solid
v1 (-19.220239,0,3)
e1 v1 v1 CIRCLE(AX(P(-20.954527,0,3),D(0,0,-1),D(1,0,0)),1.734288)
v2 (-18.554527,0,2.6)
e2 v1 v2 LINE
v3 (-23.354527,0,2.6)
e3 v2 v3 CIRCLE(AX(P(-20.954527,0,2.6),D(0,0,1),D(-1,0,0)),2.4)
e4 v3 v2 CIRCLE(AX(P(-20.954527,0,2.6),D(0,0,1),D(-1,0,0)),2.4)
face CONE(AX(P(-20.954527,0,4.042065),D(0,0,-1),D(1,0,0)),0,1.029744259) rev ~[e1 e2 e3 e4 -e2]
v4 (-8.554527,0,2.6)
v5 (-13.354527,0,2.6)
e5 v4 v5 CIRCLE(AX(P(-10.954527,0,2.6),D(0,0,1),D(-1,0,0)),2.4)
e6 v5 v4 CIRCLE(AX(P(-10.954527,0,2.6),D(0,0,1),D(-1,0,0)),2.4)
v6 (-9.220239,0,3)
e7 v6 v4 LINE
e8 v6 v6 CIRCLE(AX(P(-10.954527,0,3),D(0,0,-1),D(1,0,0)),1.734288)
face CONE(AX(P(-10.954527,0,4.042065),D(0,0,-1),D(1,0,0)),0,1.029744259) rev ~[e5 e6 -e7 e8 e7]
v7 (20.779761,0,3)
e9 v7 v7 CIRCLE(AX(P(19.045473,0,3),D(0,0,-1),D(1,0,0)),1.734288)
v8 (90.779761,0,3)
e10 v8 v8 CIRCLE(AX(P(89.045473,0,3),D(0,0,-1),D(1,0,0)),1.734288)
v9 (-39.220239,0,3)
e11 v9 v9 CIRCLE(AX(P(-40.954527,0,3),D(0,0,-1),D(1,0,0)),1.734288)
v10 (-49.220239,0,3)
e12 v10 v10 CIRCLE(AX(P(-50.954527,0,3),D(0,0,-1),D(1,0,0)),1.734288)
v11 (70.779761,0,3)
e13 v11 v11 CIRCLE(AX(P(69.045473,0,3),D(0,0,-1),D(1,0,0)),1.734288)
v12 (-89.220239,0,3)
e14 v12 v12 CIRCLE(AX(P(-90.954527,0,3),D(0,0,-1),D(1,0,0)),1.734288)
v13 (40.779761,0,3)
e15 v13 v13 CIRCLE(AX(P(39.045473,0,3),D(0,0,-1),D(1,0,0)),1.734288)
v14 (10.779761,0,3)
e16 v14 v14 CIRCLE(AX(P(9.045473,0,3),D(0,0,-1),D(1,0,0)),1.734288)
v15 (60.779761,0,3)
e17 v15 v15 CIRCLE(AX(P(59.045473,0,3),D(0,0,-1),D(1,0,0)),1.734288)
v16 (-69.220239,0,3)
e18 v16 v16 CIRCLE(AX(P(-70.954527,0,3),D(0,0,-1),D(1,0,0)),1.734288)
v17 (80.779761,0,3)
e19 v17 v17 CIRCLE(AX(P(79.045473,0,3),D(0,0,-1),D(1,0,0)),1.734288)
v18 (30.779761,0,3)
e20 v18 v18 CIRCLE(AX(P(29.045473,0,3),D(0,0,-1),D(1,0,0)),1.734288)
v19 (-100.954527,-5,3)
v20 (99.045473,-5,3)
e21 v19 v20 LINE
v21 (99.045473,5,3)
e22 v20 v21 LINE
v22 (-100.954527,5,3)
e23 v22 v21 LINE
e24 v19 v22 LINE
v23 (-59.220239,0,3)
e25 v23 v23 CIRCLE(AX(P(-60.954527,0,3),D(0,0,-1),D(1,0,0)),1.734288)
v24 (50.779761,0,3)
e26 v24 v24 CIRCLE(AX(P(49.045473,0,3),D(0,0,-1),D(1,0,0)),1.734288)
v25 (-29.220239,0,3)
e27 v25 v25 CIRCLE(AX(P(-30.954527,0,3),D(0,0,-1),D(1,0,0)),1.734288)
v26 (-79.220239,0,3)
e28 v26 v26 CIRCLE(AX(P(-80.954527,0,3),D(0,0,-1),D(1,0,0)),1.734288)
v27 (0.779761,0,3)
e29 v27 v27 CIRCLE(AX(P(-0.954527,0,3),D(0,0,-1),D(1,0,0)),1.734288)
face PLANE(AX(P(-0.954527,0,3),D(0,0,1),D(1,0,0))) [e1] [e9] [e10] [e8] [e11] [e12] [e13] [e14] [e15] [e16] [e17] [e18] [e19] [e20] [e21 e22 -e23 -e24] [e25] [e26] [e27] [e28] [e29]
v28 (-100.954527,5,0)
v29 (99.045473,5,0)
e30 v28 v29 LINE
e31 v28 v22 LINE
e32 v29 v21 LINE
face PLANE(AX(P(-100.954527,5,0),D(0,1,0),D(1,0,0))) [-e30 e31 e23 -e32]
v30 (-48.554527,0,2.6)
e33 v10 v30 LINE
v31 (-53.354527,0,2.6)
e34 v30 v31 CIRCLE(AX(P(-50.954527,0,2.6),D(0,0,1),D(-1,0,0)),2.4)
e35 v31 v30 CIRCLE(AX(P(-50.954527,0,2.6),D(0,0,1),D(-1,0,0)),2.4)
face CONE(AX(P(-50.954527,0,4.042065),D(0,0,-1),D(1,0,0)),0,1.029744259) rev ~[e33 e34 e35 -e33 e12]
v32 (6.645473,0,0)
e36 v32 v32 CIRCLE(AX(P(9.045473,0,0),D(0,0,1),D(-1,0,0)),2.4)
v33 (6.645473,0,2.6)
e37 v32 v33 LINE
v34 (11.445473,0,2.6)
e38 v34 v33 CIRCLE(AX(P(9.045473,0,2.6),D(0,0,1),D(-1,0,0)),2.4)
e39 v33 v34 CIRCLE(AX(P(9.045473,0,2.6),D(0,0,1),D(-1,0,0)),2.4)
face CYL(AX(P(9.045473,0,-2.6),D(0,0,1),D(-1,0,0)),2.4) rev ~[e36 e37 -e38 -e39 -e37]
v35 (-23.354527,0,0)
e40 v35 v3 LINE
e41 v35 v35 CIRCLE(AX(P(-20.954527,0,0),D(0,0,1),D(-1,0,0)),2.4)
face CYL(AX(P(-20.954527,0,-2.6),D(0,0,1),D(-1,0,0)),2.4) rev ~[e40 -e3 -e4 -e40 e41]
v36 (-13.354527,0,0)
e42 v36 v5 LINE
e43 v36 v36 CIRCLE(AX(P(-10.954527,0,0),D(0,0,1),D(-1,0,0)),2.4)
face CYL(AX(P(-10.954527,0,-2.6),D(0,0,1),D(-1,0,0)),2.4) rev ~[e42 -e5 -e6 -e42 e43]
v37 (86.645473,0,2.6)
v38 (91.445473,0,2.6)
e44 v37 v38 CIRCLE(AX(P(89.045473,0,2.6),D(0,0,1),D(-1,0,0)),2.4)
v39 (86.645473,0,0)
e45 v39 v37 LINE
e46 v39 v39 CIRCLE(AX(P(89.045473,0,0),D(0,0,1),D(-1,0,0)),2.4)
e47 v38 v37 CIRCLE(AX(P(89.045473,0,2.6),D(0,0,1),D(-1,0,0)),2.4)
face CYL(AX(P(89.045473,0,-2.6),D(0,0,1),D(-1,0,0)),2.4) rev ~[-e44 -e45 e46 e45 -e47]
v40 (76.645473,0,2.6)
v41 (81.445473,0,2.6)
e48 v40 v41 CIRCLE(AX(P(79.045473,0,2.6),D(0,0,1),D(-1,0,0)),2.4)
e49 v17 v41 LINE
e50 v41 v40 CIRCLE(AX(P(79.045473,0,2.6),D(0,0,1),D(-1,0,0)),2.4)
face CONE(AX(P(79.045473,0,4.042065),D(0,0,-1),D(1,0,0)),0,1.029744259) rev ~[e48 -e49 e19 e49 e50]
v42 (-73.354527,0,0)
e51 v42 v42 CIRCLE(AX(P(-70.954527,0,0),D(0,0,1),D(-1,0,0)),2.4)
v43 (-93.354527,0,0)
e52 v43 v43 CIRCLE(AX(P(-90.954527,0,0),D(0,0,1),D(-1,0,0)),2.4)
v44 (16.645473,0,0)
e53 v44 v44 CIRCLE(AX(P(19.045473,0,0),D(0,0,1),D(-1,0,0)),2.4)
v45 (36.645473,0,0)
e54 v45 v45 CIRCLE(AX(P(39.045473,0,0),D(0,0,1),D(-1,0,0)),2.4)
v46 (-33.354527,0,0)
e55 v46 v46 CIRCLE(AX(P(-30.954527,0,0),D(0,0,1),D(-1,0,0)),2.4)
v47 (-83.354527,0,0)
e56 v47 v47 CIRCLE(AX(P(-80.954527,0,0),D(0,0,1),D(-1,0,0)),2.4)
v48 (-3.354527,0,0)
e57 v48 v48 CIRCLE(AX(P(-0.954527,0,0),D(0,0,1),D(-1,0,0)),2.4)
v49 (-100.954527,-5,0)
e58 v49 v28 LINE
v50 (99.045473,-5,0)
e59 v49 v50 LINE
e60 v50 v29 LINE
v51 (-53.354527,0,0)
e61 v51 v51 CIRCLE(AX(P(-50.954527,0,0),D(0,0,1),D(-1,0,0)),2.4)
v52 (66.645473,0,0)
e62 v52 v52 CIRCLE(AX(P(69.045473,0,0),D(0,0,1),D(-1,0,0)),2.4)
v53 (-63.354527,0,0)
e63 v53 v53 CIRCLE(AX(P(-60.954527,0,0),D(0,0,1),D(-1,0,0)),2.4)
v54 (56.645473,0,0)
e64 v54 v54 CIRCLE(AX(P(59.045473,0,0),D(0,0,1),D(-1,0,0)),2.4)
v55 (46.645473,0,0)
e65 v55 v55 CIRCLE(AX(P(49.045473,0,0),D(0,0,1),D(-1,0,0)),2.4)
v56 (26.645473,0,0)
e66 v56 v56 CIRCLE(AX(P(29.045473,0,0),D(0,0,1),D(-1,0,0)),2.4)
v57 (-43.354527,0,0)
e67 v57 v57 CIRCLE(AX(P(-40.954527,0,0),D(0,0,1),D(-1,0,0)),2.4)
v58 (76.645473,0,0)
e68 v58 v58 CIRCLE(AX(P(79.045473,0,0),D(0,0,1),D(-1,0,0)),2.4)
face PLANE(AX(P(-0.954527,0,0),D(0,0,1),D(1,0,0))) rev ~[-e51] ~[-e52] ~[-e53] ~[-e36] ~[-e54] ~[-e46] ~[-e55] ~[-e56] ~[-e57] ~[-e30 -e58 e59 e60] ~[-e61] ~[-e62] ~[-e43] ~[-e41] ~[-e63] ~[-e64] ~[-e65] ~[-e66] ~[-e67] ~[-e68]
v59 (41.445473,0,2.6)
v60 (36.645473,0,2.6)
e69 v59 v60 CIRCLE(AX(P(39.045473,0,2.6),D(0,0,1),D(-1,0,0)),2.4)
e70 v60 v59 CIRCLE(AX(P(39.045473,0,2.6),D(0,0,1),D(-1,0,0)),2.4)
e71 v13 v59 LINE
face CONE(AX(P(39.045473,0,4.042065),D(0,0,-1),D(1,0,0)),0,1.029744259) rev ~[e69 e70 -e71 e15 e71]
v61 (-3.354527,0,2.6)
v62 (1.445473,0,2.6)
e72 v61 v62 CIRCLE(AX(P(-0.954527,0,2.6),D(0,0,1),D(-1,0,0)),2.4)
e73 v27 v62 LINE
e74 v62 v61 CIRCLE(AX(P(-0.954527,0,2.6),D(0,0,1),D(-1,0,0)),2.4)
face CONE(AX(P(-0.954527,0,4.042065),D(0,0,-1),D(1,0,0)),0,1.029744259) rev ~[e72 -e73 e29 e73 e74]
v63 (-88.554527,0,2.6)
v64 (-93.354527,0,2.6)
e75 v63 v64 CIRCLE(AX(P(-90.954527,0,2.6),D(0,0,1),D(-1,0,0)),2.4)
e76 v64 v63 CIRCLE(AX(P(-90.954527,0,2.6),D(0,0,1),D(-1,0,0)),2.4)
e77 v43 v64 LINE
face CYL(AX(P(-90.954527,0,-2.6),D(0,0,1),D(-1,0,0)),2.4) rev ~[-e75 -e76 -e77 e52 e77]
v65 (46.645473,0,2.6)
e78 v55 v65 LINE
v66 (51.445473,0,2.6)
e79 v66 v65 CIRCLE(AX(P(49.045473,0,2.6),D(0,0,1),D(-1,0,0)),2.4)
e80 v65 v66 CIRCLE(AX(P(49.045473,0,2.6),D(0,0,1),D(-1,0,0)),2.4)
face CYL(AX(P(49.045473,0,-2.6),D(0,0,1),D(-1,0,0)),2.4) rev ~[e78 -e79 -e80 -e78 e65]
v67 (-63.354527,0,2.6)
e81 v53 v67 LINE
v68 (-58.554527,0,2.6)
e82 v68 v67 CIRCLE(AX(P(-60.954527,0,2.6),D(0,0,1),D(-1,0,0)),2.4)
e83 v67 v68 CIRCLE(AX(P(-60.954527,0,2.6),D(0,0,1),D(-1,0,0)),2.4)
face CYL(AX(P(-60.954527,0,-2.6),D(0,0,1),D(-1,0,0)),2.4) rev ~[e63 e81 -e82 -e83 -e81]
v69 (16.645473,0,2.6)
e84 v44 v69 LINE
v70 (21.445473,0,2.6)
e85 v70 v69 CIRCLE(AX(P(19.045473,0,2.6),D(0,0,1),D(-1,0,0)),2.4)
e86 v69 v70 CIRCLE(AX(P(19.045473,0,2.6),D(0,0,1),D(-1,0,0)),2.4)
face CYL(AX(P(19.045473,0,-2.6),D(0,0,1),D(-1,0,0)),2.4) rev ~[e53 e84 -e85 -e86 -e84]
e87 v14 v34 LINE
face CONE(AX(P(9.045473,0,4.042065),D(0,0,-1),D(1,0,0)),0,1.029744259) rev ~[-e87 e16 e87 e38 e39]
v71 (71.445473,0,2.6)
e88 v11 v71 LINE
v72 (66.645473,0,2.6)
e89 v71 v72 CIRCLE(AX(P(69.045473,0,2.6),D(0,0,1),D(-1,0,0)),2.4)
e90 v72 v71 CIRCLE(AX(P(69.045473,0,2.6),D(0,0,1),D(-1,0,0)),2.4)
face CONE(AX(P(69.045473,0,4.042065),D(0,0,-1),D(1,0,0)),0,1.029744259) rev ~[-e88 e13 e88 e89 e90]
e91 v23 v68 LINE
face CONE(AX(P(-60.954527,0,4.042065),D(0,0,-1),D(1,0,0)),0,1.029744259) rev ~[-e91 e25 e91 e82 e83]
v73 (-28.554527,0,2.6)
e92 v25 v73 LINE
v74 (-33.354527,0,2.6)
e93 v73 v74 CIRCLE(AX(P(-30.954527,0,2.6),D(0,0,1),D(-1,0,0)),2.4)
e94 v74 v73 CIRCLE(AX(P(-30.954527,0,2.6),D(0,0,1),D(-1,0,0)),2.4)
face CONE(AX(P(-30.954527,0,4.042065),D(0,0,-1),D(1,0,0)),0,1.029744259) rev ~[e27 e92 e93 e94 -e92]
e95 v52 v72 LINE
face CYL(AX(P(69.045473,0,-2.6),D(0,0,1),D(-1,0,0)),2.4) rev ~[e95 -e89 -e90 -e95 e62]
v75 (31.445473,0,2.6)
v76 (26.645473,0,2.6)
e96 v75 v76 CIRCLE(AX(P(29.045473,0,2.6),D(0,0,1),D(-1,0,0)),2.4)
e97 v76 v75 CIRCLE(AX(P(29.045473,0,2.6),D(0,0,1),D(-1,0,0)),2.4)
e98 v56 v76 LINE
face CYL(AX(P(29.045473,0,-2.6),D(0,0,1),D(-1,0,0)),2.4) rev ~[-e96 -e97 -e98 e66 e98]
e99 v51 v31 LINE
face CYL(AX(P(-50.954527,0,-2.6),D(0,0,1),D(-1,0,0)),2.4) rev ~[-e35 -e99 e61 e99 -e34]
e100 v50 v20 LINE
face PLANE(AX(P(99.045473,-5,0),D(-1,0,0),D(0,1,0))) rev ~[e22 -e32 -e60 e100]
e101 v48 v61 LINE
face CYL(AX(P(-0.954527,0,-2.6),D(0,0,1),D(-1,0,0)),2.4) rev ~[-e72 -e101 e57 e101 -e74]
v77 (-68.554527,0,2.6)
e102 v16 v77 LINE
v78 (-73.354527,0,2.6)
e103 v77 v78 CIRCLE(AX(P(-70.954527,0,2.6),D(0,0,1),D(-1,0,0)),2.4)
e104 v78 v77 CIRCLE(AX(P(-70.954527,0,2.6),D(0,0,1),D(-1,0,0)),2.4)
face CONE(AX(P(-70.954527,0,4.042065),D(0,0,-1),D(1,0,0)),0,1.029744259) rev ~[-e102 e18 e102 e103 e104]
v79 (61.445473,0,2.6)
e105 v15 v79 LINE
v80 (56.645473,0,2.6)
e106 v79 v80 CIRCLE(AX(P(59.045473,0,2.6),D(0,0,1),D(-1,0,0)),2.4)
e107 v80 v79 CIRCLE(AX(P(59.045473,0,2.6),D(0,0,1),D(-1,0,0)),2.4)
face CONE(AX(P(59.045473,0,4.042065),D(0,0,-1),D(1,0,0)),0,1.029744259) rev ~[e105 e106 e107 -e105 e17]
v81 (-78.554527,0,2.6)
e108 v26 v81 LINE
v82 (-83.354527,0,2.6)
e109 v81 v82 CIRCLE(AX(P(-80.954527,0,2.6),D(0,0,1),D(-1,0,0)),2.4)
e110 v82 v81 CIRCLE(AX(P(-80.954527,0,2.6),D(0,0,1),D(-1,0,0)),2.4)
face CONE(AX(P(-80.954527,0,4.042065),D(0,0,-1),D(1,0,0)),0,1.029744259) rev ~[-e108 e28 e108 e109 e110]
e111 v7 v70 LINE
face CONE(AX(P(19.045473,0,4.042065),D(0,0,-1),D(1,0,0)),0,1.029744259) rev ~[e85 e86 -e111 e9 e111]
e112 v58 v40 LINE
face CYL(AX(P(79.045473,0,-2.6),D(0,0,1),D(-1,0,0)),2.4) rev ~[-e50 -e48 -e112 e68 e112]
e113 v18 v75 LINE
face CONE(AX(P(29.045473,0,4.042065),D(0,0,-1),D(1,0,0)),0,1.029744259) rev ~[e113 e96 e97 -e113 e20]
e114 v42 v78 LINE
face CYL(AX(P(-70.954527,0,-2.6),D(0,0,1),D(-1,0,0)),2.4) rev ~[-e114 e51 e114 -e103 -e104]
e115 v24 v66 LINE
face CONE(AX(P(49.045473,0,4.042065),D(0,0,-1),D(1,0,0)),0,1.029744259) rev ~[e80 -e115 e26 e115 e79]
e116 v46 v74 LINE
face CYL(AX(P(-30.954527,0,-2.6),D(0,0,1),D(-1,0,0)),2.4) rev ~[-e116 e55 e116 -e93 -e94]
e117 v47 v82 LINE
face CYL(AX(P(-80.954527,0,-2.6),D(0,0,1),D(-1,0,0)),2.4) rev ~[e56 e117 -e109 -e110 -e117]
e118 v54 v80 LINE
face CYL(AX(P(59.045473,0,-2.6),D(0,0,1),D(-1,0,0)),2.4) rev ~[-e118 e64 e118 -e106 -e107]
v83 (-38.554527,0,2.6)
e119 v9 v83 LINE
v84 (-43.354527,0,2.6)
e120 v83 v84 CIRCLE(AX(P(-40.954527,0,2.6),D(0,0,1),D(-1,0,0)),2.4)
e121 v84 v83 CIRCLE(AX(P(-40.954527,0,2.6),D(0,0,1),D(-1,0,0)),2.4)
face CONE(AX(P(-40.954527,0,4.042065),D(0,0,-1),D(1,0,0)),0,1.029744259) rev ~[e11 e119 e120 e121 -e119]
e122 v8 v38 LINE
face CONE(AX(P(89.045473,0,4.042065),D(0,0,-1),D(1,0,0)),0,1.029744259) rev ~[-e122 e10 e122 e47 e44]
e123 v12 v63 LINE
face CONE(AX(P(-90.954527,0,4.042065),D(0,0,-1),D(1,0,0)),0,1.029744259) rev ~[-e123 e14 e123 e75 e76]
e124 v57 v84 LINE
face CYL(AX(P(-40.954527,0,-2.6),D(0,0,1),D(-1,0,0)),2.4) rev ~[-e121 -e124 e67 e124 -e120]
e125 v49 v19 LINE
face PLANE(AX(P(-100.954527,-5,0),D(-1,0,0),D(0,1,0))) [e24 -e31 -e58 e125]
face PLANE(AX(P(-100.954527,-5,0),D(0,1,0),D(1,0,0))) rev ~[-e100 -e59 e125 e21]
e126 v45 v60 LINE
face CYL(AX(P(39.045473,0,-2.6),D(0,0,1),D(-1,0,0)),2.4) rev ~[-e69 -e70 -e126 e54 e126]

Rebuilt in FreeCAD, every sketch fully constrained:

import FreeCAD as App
import Part
import Sketcher

doc = App.newDocument("Part")
body = doc.addObject("PartDesign::Body", "Body")

# Sketch on XY plane
sketch1 = body.newObject("Sketcher::SketchObject", "Sketch")
sketch1.AttachmentSupport = (doc.getObject("XY_Plane"), [""])
sketch1.MapMode = "FlatFace"
sketch1.addGeometry([
    Part.LineSegment(App.Vector(-100.954527, 5, 0), App.Vector(-100.954527, -5, 0)),
    Part.LineSegment(App.Vector(-100.954527, -5, 0), App.Vector(99.045473, -5, 0)),
    Part.LineSegment(App.Vector(99.045473, -5, 0), App.Vector(99.045473, 5, 0)),
    Part.LineSegment(App.Vector(99.045473, 5, 0), App.Vector(-100.954527, 5, 0)),
], False)
sketch1.addConstraint([
    Sketcher.Constraint("Coincident", 0, 2, 1, 1),
    Sketcher.Constraint("Coincident", 1, 2, 2, 1),
    Sketcher.Constraint("Coincident", 2, 2, 3, 1),
    Sketcher.Constraint("Coincident", 3, 2, 0, 1),
    Sketcher.Constraint("Vertical", 0),
    Sketcher.Constraint("Horizontal", 1),
    Sketcher.Constraint("Vertical", 2),
    Sketcher.Constraint("Horizontal", 3),
    Sketcher.Constraint("DistanceX", 1, 1, 1, 2, 200.0),
    Sketcher.Constraint("DistanceY", 0, 2, 0, 1, 10.0),
    Sketcher.Constraint("DistanceY", 0, 2, -1, 1, 5.0),
    Sketcher.Constraint("DistanceX", 0, 2, -1, 1, 100.954527),
])
pad1 = body.newObject("PartDesign::Pad", "Pad")
pad1.Profile = sketch1
pad1.Length = 3

# Sketch on XY plane
sketch2 = body.newObject("Sketcher::SketchObject", "Sketch001")
sketch2.AttachmentSupport = (doc.getObject("XY_Plane"), [""])
sketch2.MapMode = "FlatFace"
sketch2.addGeometry([
    Part.Circle(App.Vector(-90.954527, 0, 0), App.Vector(0, 0, 1), 2.4),  # 0
    Part.Circle(App.Vector(-80.954527, 0, 0), App.Vector(0, 0, 1), 2.4),  # 1
    Part.Circle(App.Vector(-70.954527, 0, 0), App.Vector(0, 0, 1), 2.4),  # 2
    Part.Circle(App.Vector(-60.954527, 0, 0), App.Vector(0, 0, 1), 2.4),  # 3
    Part.Circle(App.Vector(-50.954527, 0, 0), App.Vector(0, 0, 1), 2.4),  # 4
    Part.Circle(App.Vector(-40.954527, 0, 0), App.Vector(0, 0, 1), 2.4),  # 5
    Part.Circle(App.Vector(-30.954527, 0, 0), App.Vector(0, 0, 1), 2.4),  # 6
    Part.Circle(App.Vector(-20.954527, 0, 0), App.Vector(0, 0, 1), 2.4),  # 7
    Part.Circle(App.Vector(-10.954527, 0, 0), App.Vector(0, 0, 1), 2.4),  # 8
    Part.Circle(App.Vector(-0.954527, 0, 0), App.Vector(0, 0, 1), 2.4),  # 9
    Part.Circle(App.Vector(9.045473, 0, 0), App.Vector(0, 0, 1), 2.4),  # 10
    Part.Circle(App.Vector(19.045473, 0, 0), App.Vector(0, 0, 1), 2.4),  # 11
    Part.Circle(App.Vector(29.045473, 0, 0), App.Vector(0, 0, 1), 2.4),  # 12
    Part.Circle(App.Vector(39.045473, 0, 0), App.Vector(0, 0, 1), 2.4),  # 13
    Part.Circle(App.Vector(49.045473, 0, 0), App.Vector(0, 0, 1), 2.4),  # 14
    Part.Circle(App.Vector(59.045473, 0, 0), App.Vector(0, 0, 1), 2.4),  # 15
    Part.Circle(App.Vector(69.045473, 0, 0), App.Vector(0, 0, 1), 2.4),  # 16
    Part.Circle(App.Vector(79.045473, 0, 0), App.Vector(0, 0, 1), 2.4),  # 17
    Part.Circle(App.Vector(89.045473, 0, 0), App.Vector(0, 0, 1), 2.4),  # 18
], False)
sketch2.addConstraint([
    Sketcher.Constraint("Equal", 0, 1),
    Sketcher.Constraint("Equal", 1, 2),
    Sketcher.Constraint("Equal", 2, 3),
    Sketcher.Constraint("Equal", 3, 4),
    Sketcher.Constraint("Equal", 4, 5),
    Sketcher.Constraint("Equal", 5, 6),
    Sketcher.Constraint("Equal", 6, 7),
    Sketcher.Constraint("Equal", 7, 8),
    Sketcher.Constraint("Equal", 8, 9),
    Sketcher.Constraint("Equal", 9, 10),
    Sketcher.Constraint("Equal", 10, 11),
    Sketcher.Constraint("Equal", 11, 12),
    Sketcher.Constraint("Equal", 12, 13),
    Sketcher.Constraint("Equal", 13, 14),
    Sketcher.Constraint("Equal", 14, 15),
    Sketcher.Constraint("Equal", 15, 16),
    Sketcher.Constraint("Equal", 16, 17),
    Sketcher.Constraint("Equal", 17, 18),
    Sketcher.Constraint("PointOnObject", 0, 3, -1),
    Sketcher.Constraint("PointOnObject", 1, 3, -1),
    Sketcher.Constraint("PointOnObject", 2, 3, -1),
    Sketcher.Constraint("PointOnObject", 3, 3, -1),
    Sketcher.Constraint("PointOnObject", 4, 3, -1),
    Sketcher.Constraint("PointOnObject", 5, 3, -1),
    Sketcher.Constraint("PointOnObject", 6, 3, -1),
    Sketcher.Constraint("PointOnObject", 7, 3, -1),
    Sketcher.Constraint("PointOnObject", 8, 3, -1),
    Sketcher.Constraint("PointOnObject", 9, 3, -1),
    Sketcher.Constraint("PointOnObject", 10, 3, -1),
    Sketcher.Constraint("PointOnObject", 11, 3, -1),
    Sketcher.Constraint("PointOnObject", 12, 3, -1),
    Sketcher.Constraint("PointOnObject", 13, 3, -1),
    Sketcher.Constraint("PointOnObject", 14, 3, -1),
    Sketcher.Constraint("PointOnObject", 15, 3, -1),
    Sketcher.Constraint("PointOnObject", 16, 3, -1),
    Sketcher.Constraint("PointOnObject", 17, 3, -1),
    Sketcher.Constraint("PointOnObject", 18, 3, -1),
    Sketcher.Constraint("Diameter", 0, 4.8),
    Sketcher.Constraint("DistanceX", 0, 3, 1, 3, 10.0),
    Sketcher.Constraint("DistanceX", 1, 3, 2, 3, 10.0),
    Sketcher.Constraint("DistanceX", 2, 3, 3, 3, 10.0),
    Sketcher.Constraint("DistanceX", 3, 3, 4, 3, 10.0),
    Sketcher.Constraint("DistanceX", 4, 3, 5, 3, 10.0),
    Sketcher.Constraint("DistanceX", 5, 3, 6, 3, 10.0),
    Sketcher.Constraint("DistanceX", 6, 3, 7, 3, 10.0),
    Sketcher.Constraint("DistanceX", 7, 3, 8, 3, 10.0),
    Sketcher.Constraint("DistanceX", 8, 3, 9, 3, 10.0),
    Sketcher.Constraint("DistanceX", 9, 3, 10, 3, 10.0),
    Sketcher.Constraint("DistanceX", 10, 3, 11, 3, 10.0),
    Sketcher.Constraint("DistanceX", 11, 3, 12, 3, 10.0),
    Sketcher.Constraint("DistanceX", 12, 3, 13, 3, 10.0),
    Sketcher.Constraint("DistanceX", 13, 3, 14, 3, 10.0),
    Sketcher.Constraint("DistanceX", 14, 3, 15, 3, 10.0),
    Sketcher.Constraint("DistanceX", 15, 3, 16, 3, 10.0),
    Sketcher.Constraint("DistanceX", 16, 3, 17, 3, 10.0),
    Sketcher.Constraint("DistanceX", 17, 3, 18, 3, 10.0),
    Sketcher.Constraint("DistanceX", 0, 3, -1, 1, 90.954527),
])
doc.recompute()
hole = body.newObject("PartDesign::Hole", "Hole")
hole.Profile = sketch2
hole.ThreadType = "None"
hole.Diameter = 4.8
hole.DepthType = "Dimension"
hole.Depth = 2.6
hole.DrillPoint = "Angled"
hole.DrillPointAngle = 118
hole.Reversed = True

doc.recompute()
